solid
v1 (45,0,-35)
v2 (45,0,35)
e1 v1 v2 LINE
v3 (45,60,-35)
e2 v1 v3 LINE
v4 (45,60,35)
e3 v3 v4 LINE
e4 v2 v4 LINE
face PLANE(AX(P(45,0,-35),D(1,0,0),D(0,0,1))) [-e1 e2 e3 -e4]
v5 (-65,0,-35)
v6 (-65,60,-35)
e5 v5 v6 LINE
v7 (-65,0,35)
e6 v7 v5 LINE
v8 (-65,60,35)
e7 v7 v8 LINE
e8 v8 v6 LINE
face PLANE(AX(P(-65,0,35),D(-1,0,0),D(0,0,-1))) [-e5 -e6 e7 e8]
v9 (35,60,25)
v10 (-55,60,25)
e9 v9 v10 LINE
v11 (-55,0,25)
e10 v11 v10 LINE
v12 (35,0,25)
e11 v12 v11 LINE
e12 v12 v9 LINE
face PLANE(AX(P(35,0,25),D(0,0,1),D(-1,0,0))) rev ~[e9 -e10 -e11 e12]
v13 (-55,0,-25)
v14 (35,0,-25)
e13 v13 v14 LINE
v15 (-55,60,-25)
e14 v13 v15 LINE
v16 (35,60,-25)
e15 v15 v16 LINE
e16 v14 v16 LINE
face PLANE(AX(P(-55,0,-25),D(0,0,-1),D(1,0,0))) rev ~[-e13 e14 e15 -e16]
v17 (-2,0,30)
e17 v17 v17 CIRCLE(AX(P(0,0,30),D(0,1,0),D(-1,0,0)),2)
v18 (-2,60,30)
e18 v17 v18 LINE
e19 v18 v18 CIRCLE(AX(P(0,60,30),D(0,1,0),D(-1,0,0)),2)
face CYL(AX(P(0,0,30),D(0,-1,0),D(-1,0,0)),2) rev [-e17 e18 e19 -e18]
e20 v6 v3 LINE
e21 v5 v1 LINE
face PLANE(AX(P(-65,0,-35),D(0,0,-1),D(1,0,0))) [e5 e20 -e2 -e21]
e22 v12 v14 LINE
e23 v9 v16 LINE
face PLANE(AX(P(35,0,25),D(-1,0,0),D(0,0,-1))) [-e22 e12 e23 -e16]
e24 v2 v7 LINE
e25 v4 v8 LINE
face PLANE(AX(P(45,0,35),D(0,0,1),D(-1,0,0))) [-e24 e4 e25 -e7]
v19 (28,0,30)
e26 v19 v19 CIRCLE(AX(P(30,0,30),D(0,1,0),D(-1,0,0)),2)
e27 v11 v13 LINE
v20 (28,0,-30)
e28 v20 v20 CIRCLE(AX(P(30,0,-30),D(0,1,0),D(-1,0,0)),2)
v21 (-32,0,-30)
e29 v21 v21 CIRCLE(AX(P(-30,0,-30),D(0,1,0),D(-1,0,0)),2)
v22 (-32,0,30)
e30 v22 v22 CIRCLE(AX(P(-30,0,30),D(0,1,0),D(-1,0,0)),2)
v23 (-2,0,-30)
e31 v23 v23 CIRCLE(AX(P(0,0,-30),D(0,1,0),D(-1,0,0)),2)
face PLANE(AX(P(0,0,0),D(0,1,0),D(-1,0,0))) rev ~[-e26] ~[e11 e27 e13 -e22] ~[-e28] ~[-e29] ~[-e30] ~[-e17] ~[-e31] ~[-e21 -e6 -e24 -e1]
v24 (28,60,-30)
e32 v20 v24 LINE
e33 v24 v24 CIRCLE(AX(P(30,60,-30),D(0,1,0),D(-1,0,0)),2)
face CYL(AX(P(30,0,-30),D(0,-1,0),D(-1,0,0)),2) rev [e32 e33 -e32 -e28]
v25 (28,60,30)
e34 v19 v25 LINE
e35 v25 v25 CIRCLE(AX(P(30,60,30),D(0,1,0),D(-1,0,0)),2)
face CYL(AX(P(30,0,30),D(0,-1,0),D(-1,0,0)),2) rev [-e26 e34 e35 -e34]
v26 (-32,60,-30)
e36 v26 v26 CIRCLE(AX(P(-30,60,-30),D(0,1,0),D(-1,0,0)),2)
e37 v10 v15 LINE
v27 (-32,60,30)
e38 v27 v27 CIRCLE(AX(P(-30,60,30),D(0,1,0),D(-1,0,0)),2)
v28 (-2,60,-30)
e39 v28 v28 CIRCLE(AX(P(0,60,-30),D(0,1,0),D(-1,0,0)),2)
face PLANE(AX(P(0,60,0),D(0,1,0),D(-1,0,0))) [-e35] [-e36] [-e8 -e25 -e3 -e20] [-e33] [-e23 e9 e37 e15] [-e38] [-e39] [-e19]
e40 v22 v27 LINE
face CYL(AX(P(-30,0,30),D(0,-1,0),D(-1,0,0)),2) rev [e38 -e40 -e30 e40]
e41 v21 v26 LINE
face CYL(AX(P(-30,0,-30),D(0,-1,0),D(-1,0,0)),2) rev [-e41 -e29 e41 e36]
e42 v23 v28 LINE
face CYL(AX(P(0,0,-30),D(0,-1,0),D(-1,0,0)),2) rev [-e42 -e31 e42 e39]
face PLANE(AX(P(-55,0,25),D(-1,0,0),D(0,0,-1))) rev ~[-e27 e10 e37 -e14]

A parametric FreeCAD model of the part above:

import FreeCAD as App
import Part
import Sketcher

V = App.Vector

doc = App.newDocument("Part")
params = doc.addObject("Spreadsheet::Sheet", "Params")
for row, (alias, value) in enumerate([
    ("sketch1_diameter", "4 mm"),
    ("sketch1_height", "70 mm"),
    ("sketch1_width", "110 mm"),
    ("pad1_length", "60 mm"),
], start=1):
    params.set(f"A{row}", alias)
    params.set(f"B{row}", "=" + value)
    params.setAlias(f"B{row}", alias)

body = doc.addObject("PartDesign::Body", "Body")

# Sketch on XZ plane
sketch1 = body.newObject("Sketcher::SketchObject", "Sketch")
sketch1.AttachmentSupport = (doc.getObject("XZ_Plane"), [""])
sketch1.MapMode = "FlatFace"
sketch1.addGeometry(Part.LineSegment(V(-65, 35, 0), V(45, 35, 0)), False)
sketch1.addGeometry(Part.LineSegment(V(45, 35, 0), V(45, -35, 0)), False)
sketch1.addGeometry(Part.LineSegment(V(45, -35, 0), V(-65, -35, 0)), False)
sketch1.addGeometry(Part.LineSegment(V(-65, -35, 0), V(-65, 35, 0)), False)
sketch1.addGeometry(Part.Circle(V(30, -30, 0), V(0, 0, 1), 2), False)
sketch1.addGeometry(Part.Circle(V(0, -30, 0), V(0, 0, 1), 2), False)
sketch1.addGeometry(Part.Circle(V(-30, -30, 0), V(0, 0, 1), 2), False)
sketch1.addGeometry(Part.Circle(V(30, 30, 0), V(0, 0, 1), 2), False)
sketch1.addGeometry(Part.Circle(V(0, 30, 0), V(0, 0, 1), 2), False)
sketch1.addGeometry(Part.LineSegment(V(35, 25, 0), V(-55, 25, 0)), False)
sketch1.addGeometry(Part.LineSegment(V(-55, 25, 0), V(-55, -25, 0)), False)
sketch1.addGeometry(Part.LineSegment(V(-55, -25, 0), V(35, -25, 0)), False)
sketch1.addGeometry(Part.LineSegment(V(35, -25, 0), V(35, 25, 0)), False)
sketch1.addGeometry(Part.Circle(V(-30, 30, 0), V(0, 0, 1), 2), False)
sketch1.addConstraint(Sketcher.Constraint("Coincident", 0, 2, 1, 1))
sketch1.addConstraint(Sketcher.Constraint("Coincident", 1, 2, 2, 1))
sketch1.addConstraint(Sketcher.Constraint("Coincident", 2, 2, 3, 1))
sketch1.addConstraint(Sketcher.Constraint("Coincident", 3, 2, 0, 1))
sketch1.addConstraint(Sketcher.Constraint("Coincident", 9, 2, 10, 1))
sketch1.addConstraint(Sketcher.Constraint("Coincident", 10, 2, 11, 1))
sketch1.addConstraint(Sketcher.Constraint("Coincident", 11, 2, 12, 1))
sketch1.addConstraint(Sketcher.Constraint("Coincident", 12, 2, 9, 1))
sketch1.addConstraint(Sketcher.Constraint("Horizontal", 0))
sketch1.addConstraint(Sketcher.Constraint("Vertical", 1))
sketch1.addConstraint(Sketcher.Constraint("Horizontal", 2))
sketch1.addConstraint(Sketcher.Constraint("Vertical", 3))
sketch1.addConstraint(Sketcher.Constraint("Horizontal", 9))
sketch1.addConstraint(Sketcher.Constraint("Vertical", 10))
sketch1.addConstraint(Sketcher.Constraint("Horizontal", 11))
sketch1.addConstraint(Sketcher.Constraint("Vertical", 12))
sketch1.addConstraint(Sketcher.Constraint("Equal", 4, 5))
sketch1.addConstraint(Sketcher.Constraint("Equal", 5, 6))
sketch1.addConstraint(Sketcher.Constraint("Equal", 6, 7))
sketch1.addConstraint(Sketcher.Constraint("Equal", 7, 8))
sketch1.addConstraint(Sketcher.Constraint("Equal", 8, 13))
sketch1.addConstraint(Sketcher.Constraint("Symmetric", 6, 3, 7, 3, -1, 1))
sketch1.addConstraint(Sketcher.Constraint("Symmetric", 5, 3, 8, 3, -1, 1))
sketch1.addConstraint(Sketcher.Constraint("Symmetric", 4, 3, 13, 3, -1, 1))
sketch1.addConstraint(Sketcher.Constraint("Symmetric", 4, 3, 6, 3, -2))
sketch1.addConstraint(Sketcher.Constraint("PointOnObject", 5, 3, -2))
sketch1.addConstraint(Sketcher.Constraint("Horizontal", 4, 3, 5, 3))
sketch1.addConstraint(Sketcher.Constraint("Diameter", 4, 4.0))
sketch1.addConstraint(Sketcher.Constraint("DistanceY", 1, 2, 1, 1, 70.0))
sketch1.addConstraint(Sketcher.Constraint("DistanceX", -1, 1, 4, 3, 30.0))
sketch1.addConstraint(Sketcher.Constraint("DistanceY", 4, 3, -1, 1, 30.0))
sketch1.addConstraint(Sketcher.Constraint("DistanceY", 7, 3, 0, 2, 5.0))
sketch1.addConstraint(Sketcher.Constraint("DistanceX", 3, 2, 9, 2, 10.0))
sketch1.addConstraint(Sketcher.Constraint("DistanceY", 9, 2, 3, 2, 10.0))
sketch1.addConstraint(Sketcher.Constraint("DistanceY", 2, 2, 10, 2, 10.0))
sketch1.addConstraint(Sketcher.Constraint("DistanceX", 4, 3, 11, 2, 5.0))
sketch1.addConstraint(Sketcher.Constraint("DistanceX", 11, 2, 1, 2, 10.0))
sketch1.addConstraint(Sketcher.Constraint("DistanceX", 0, 1, 0, 2, 110.0))
sketch1.setExpression("Constraints[27]", "Params.sketch1_diameter")
sketch1.setExpression("Constraints[28]", "Params.sketch1_height")
sketch1.setExpression("Constraints[37]", "Params.sketch1_width")
pad1 = body.newObject("PartDesign::Pad", "Pad")
pad1.Profile = sketch1
pad1.setExpression("Length", "Params.pad1_length")
pad1.Reversed = True

doc.recompute()
